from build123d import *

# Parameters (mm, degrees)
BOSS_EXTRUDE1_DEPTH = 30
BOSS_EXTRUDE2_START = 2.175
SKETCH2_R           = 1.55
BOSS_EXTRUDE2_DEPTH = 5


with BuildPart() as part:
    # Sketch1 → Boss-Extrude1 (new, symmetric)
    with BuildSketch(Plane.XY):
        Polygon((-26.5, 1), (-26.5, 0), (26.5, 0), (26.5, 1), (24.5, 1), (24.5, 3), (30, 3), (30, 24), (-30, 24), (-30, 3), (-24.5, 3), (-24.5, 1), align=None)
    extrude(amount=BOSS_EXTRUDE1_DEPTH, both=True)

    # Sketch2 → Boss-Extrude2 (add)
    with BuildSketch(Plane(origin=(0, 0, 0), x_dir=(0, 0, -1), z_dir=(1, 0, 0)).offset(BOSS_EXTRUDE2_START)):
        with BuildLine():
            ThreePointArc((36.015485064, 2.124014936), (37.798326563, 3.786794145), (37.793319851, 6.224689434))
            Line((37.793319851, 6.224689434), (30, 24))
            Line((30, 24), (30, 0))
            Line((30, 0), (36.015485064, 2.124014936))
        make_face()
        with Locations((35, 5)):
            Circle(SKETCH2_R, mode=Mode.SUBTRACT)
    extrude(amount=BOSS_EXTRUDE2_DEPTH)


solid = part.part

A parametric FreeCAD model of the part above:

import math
import FreeCAD as App
import Part
import Sketcher

V = App.Vector
Q = App.Units.Quantity


def add_polygon(sketch, points):
    """Adds a closed chain of lines whose ends are joined by coincident constraints."""
    first, n = sketch.GeometryCount, len(points)
    for a, b in zip(points, points[1:] + points[:1]):
        sketch.addGeometry(Part.LineSegment(App.Vector(*a, 0), App.Vector(*b, 0)), False)
    for i in range(n):
        sketch.addConstraint(Sketcher.Constraint("Coincident", first + i, 2, first + (i + 1) % n, 1))

doc = App.newDocument("Part")
body = doc.addObject("PartDesign::Body", "Body")

sketch1 = body.newObject("Sketcher::SketchObject", "Sketch")
sketch1.AttachmentSupport = (doc.getObject("XY_Plane"), [""])
sketch1.MapMode = "FlatFace"
add_polygon(sketch1, [(-26.5, 1), (-26.5, 0), (26.5, 0), (26.5, 1), (24.5, 1), (24.5, 3), (30, 3), (30, 24), (-30, 24), (-30, 3), (-24.5, 3), (-24.5, 1)])
sketch1.addConstraint([
    Sketcher.Constraint("Vertical", 0),
    Sketcher.Constraint("Horizontal", 1),
    Sketcher.Constraint("Vertical", 2),
    Sketcher.Constraint("Horizontal", 3),
    Sketcher.Constraint("Vertical", 4),
    Sketcher.Constraint("Horizontal", 5),
    Sketcher.Constraint("Vertical", 6),
    Sketcher.Constraint("Horizontal", 7),
    Sketcher.Constraint("Vertical", 8),
    Sketcher.Constraint("Horizontal", 9),
    Sketcher.Constraint("Vertical", 10),
    Sketcher.Constraint("Horizontal", 11),
    Sketcher.Constraint("Symmetric", 0, 2, 1, 2, -1, 1),
    Sketcher.Constraint("Symmetric", 5, 2, 8, 2, -2),
    Sketcher.Constraint("Symmetric", 3, 2, 10, 2, -2),
    Sketcher.Constraint("Equal", 11, 4),
    Sketcher.Constraint("DistanceX", 1, 1, 1, 2, Q("53 mm")),
    Sketcher.Constraint("DistanceX", 3, 2, 3, 1, Q("2 mm")),
    Sketcher.Constraint("DistanceX", 7, 2, 7, 1, Q("60 mm")),
    Sketcher.Constraint("DistanceY", 0, 2, 0, 1, Q("1 mm")),
    Sketcher.Constraint("DistanceY", 6, 1, 6, 2, Q("21 mm")),
])
pad1 = body.newObject("PartDesign::Pad", "Pad")
pad1.Profile = sketch1
pad1.Length = 60
pad1.Midplane = True

sketch2 = body.newObject("Sketcher::SketchObject", "Sketch001")
sketch2.AttachmentSupport = (doc.getObject("YZ_Plane"), [""])
sketch2.MapMode = "FlatFace"
sketch2.AttachmentOffset = App.Placement(V(0, 0, 2.175), App.Rotation())
sketch2.addGeometry([
    Part.ArcOfCircle(Part.Circle(V(5, -35, 0), V(0, 0, 1), 3.1), math.radians(-161), math.radians(-66)),
    Part.LineSegment(V(6.2, -37.8, 0), V(24, -30, 0)),
    Part.LineSegment(V(24, -30, 0), V(0, -30, 0)),
    Part.LineSegment(V(0, -30, 0), V(2.1, -36, 0)),
    Part.Circle(V(5, -35, 0), V(0, 0, 1), 1.6),
], False)
sketch2.addConstraint([
    Sketcher.Constraint("Tangent", 0, 2, 1, 1),
    Sketcher.Constraint("Coincident", 1, 2, 2, 1),
    Sketcher.Constraint("Coincident", 2, 2, 3, 1),
    Sketcher.Constraint("Tangent", 3, 2, 0, 1),
    Sketcher.Constraint("Horizontal", 2),
    Sketcher.Constraint("Coincident", 4, 3, 0, 3),
    Sketcher.Constraint("PointOnObject", 2, 2, -2),
    Sketcher.Constraint("Diameter", 4, Q("3.1 mm")),
    Sketcher.Constraint("DistanceX", 2, 2, 2, 1, Q("24 mm")),
    Sketcher.Constraint("Radius", 0, Q("3.05 mm")),
    Sketcher.Constraint("DistanceX", -1, 1, 0, 3, Q("5 mm")),
    Sketcher.Constraint("DistanceY", 0, 3, -1, 1, Q("35 mm")),
    Sketcher.Constraint("DistanceY", 1, 2, -1, 1, Q("30 mm")),
])
pad2 = body.newObject("PartDesign::Pad", "Pad001")
pad2.Profile = sketch2
pad2.Length = 5

doc.recompute()
